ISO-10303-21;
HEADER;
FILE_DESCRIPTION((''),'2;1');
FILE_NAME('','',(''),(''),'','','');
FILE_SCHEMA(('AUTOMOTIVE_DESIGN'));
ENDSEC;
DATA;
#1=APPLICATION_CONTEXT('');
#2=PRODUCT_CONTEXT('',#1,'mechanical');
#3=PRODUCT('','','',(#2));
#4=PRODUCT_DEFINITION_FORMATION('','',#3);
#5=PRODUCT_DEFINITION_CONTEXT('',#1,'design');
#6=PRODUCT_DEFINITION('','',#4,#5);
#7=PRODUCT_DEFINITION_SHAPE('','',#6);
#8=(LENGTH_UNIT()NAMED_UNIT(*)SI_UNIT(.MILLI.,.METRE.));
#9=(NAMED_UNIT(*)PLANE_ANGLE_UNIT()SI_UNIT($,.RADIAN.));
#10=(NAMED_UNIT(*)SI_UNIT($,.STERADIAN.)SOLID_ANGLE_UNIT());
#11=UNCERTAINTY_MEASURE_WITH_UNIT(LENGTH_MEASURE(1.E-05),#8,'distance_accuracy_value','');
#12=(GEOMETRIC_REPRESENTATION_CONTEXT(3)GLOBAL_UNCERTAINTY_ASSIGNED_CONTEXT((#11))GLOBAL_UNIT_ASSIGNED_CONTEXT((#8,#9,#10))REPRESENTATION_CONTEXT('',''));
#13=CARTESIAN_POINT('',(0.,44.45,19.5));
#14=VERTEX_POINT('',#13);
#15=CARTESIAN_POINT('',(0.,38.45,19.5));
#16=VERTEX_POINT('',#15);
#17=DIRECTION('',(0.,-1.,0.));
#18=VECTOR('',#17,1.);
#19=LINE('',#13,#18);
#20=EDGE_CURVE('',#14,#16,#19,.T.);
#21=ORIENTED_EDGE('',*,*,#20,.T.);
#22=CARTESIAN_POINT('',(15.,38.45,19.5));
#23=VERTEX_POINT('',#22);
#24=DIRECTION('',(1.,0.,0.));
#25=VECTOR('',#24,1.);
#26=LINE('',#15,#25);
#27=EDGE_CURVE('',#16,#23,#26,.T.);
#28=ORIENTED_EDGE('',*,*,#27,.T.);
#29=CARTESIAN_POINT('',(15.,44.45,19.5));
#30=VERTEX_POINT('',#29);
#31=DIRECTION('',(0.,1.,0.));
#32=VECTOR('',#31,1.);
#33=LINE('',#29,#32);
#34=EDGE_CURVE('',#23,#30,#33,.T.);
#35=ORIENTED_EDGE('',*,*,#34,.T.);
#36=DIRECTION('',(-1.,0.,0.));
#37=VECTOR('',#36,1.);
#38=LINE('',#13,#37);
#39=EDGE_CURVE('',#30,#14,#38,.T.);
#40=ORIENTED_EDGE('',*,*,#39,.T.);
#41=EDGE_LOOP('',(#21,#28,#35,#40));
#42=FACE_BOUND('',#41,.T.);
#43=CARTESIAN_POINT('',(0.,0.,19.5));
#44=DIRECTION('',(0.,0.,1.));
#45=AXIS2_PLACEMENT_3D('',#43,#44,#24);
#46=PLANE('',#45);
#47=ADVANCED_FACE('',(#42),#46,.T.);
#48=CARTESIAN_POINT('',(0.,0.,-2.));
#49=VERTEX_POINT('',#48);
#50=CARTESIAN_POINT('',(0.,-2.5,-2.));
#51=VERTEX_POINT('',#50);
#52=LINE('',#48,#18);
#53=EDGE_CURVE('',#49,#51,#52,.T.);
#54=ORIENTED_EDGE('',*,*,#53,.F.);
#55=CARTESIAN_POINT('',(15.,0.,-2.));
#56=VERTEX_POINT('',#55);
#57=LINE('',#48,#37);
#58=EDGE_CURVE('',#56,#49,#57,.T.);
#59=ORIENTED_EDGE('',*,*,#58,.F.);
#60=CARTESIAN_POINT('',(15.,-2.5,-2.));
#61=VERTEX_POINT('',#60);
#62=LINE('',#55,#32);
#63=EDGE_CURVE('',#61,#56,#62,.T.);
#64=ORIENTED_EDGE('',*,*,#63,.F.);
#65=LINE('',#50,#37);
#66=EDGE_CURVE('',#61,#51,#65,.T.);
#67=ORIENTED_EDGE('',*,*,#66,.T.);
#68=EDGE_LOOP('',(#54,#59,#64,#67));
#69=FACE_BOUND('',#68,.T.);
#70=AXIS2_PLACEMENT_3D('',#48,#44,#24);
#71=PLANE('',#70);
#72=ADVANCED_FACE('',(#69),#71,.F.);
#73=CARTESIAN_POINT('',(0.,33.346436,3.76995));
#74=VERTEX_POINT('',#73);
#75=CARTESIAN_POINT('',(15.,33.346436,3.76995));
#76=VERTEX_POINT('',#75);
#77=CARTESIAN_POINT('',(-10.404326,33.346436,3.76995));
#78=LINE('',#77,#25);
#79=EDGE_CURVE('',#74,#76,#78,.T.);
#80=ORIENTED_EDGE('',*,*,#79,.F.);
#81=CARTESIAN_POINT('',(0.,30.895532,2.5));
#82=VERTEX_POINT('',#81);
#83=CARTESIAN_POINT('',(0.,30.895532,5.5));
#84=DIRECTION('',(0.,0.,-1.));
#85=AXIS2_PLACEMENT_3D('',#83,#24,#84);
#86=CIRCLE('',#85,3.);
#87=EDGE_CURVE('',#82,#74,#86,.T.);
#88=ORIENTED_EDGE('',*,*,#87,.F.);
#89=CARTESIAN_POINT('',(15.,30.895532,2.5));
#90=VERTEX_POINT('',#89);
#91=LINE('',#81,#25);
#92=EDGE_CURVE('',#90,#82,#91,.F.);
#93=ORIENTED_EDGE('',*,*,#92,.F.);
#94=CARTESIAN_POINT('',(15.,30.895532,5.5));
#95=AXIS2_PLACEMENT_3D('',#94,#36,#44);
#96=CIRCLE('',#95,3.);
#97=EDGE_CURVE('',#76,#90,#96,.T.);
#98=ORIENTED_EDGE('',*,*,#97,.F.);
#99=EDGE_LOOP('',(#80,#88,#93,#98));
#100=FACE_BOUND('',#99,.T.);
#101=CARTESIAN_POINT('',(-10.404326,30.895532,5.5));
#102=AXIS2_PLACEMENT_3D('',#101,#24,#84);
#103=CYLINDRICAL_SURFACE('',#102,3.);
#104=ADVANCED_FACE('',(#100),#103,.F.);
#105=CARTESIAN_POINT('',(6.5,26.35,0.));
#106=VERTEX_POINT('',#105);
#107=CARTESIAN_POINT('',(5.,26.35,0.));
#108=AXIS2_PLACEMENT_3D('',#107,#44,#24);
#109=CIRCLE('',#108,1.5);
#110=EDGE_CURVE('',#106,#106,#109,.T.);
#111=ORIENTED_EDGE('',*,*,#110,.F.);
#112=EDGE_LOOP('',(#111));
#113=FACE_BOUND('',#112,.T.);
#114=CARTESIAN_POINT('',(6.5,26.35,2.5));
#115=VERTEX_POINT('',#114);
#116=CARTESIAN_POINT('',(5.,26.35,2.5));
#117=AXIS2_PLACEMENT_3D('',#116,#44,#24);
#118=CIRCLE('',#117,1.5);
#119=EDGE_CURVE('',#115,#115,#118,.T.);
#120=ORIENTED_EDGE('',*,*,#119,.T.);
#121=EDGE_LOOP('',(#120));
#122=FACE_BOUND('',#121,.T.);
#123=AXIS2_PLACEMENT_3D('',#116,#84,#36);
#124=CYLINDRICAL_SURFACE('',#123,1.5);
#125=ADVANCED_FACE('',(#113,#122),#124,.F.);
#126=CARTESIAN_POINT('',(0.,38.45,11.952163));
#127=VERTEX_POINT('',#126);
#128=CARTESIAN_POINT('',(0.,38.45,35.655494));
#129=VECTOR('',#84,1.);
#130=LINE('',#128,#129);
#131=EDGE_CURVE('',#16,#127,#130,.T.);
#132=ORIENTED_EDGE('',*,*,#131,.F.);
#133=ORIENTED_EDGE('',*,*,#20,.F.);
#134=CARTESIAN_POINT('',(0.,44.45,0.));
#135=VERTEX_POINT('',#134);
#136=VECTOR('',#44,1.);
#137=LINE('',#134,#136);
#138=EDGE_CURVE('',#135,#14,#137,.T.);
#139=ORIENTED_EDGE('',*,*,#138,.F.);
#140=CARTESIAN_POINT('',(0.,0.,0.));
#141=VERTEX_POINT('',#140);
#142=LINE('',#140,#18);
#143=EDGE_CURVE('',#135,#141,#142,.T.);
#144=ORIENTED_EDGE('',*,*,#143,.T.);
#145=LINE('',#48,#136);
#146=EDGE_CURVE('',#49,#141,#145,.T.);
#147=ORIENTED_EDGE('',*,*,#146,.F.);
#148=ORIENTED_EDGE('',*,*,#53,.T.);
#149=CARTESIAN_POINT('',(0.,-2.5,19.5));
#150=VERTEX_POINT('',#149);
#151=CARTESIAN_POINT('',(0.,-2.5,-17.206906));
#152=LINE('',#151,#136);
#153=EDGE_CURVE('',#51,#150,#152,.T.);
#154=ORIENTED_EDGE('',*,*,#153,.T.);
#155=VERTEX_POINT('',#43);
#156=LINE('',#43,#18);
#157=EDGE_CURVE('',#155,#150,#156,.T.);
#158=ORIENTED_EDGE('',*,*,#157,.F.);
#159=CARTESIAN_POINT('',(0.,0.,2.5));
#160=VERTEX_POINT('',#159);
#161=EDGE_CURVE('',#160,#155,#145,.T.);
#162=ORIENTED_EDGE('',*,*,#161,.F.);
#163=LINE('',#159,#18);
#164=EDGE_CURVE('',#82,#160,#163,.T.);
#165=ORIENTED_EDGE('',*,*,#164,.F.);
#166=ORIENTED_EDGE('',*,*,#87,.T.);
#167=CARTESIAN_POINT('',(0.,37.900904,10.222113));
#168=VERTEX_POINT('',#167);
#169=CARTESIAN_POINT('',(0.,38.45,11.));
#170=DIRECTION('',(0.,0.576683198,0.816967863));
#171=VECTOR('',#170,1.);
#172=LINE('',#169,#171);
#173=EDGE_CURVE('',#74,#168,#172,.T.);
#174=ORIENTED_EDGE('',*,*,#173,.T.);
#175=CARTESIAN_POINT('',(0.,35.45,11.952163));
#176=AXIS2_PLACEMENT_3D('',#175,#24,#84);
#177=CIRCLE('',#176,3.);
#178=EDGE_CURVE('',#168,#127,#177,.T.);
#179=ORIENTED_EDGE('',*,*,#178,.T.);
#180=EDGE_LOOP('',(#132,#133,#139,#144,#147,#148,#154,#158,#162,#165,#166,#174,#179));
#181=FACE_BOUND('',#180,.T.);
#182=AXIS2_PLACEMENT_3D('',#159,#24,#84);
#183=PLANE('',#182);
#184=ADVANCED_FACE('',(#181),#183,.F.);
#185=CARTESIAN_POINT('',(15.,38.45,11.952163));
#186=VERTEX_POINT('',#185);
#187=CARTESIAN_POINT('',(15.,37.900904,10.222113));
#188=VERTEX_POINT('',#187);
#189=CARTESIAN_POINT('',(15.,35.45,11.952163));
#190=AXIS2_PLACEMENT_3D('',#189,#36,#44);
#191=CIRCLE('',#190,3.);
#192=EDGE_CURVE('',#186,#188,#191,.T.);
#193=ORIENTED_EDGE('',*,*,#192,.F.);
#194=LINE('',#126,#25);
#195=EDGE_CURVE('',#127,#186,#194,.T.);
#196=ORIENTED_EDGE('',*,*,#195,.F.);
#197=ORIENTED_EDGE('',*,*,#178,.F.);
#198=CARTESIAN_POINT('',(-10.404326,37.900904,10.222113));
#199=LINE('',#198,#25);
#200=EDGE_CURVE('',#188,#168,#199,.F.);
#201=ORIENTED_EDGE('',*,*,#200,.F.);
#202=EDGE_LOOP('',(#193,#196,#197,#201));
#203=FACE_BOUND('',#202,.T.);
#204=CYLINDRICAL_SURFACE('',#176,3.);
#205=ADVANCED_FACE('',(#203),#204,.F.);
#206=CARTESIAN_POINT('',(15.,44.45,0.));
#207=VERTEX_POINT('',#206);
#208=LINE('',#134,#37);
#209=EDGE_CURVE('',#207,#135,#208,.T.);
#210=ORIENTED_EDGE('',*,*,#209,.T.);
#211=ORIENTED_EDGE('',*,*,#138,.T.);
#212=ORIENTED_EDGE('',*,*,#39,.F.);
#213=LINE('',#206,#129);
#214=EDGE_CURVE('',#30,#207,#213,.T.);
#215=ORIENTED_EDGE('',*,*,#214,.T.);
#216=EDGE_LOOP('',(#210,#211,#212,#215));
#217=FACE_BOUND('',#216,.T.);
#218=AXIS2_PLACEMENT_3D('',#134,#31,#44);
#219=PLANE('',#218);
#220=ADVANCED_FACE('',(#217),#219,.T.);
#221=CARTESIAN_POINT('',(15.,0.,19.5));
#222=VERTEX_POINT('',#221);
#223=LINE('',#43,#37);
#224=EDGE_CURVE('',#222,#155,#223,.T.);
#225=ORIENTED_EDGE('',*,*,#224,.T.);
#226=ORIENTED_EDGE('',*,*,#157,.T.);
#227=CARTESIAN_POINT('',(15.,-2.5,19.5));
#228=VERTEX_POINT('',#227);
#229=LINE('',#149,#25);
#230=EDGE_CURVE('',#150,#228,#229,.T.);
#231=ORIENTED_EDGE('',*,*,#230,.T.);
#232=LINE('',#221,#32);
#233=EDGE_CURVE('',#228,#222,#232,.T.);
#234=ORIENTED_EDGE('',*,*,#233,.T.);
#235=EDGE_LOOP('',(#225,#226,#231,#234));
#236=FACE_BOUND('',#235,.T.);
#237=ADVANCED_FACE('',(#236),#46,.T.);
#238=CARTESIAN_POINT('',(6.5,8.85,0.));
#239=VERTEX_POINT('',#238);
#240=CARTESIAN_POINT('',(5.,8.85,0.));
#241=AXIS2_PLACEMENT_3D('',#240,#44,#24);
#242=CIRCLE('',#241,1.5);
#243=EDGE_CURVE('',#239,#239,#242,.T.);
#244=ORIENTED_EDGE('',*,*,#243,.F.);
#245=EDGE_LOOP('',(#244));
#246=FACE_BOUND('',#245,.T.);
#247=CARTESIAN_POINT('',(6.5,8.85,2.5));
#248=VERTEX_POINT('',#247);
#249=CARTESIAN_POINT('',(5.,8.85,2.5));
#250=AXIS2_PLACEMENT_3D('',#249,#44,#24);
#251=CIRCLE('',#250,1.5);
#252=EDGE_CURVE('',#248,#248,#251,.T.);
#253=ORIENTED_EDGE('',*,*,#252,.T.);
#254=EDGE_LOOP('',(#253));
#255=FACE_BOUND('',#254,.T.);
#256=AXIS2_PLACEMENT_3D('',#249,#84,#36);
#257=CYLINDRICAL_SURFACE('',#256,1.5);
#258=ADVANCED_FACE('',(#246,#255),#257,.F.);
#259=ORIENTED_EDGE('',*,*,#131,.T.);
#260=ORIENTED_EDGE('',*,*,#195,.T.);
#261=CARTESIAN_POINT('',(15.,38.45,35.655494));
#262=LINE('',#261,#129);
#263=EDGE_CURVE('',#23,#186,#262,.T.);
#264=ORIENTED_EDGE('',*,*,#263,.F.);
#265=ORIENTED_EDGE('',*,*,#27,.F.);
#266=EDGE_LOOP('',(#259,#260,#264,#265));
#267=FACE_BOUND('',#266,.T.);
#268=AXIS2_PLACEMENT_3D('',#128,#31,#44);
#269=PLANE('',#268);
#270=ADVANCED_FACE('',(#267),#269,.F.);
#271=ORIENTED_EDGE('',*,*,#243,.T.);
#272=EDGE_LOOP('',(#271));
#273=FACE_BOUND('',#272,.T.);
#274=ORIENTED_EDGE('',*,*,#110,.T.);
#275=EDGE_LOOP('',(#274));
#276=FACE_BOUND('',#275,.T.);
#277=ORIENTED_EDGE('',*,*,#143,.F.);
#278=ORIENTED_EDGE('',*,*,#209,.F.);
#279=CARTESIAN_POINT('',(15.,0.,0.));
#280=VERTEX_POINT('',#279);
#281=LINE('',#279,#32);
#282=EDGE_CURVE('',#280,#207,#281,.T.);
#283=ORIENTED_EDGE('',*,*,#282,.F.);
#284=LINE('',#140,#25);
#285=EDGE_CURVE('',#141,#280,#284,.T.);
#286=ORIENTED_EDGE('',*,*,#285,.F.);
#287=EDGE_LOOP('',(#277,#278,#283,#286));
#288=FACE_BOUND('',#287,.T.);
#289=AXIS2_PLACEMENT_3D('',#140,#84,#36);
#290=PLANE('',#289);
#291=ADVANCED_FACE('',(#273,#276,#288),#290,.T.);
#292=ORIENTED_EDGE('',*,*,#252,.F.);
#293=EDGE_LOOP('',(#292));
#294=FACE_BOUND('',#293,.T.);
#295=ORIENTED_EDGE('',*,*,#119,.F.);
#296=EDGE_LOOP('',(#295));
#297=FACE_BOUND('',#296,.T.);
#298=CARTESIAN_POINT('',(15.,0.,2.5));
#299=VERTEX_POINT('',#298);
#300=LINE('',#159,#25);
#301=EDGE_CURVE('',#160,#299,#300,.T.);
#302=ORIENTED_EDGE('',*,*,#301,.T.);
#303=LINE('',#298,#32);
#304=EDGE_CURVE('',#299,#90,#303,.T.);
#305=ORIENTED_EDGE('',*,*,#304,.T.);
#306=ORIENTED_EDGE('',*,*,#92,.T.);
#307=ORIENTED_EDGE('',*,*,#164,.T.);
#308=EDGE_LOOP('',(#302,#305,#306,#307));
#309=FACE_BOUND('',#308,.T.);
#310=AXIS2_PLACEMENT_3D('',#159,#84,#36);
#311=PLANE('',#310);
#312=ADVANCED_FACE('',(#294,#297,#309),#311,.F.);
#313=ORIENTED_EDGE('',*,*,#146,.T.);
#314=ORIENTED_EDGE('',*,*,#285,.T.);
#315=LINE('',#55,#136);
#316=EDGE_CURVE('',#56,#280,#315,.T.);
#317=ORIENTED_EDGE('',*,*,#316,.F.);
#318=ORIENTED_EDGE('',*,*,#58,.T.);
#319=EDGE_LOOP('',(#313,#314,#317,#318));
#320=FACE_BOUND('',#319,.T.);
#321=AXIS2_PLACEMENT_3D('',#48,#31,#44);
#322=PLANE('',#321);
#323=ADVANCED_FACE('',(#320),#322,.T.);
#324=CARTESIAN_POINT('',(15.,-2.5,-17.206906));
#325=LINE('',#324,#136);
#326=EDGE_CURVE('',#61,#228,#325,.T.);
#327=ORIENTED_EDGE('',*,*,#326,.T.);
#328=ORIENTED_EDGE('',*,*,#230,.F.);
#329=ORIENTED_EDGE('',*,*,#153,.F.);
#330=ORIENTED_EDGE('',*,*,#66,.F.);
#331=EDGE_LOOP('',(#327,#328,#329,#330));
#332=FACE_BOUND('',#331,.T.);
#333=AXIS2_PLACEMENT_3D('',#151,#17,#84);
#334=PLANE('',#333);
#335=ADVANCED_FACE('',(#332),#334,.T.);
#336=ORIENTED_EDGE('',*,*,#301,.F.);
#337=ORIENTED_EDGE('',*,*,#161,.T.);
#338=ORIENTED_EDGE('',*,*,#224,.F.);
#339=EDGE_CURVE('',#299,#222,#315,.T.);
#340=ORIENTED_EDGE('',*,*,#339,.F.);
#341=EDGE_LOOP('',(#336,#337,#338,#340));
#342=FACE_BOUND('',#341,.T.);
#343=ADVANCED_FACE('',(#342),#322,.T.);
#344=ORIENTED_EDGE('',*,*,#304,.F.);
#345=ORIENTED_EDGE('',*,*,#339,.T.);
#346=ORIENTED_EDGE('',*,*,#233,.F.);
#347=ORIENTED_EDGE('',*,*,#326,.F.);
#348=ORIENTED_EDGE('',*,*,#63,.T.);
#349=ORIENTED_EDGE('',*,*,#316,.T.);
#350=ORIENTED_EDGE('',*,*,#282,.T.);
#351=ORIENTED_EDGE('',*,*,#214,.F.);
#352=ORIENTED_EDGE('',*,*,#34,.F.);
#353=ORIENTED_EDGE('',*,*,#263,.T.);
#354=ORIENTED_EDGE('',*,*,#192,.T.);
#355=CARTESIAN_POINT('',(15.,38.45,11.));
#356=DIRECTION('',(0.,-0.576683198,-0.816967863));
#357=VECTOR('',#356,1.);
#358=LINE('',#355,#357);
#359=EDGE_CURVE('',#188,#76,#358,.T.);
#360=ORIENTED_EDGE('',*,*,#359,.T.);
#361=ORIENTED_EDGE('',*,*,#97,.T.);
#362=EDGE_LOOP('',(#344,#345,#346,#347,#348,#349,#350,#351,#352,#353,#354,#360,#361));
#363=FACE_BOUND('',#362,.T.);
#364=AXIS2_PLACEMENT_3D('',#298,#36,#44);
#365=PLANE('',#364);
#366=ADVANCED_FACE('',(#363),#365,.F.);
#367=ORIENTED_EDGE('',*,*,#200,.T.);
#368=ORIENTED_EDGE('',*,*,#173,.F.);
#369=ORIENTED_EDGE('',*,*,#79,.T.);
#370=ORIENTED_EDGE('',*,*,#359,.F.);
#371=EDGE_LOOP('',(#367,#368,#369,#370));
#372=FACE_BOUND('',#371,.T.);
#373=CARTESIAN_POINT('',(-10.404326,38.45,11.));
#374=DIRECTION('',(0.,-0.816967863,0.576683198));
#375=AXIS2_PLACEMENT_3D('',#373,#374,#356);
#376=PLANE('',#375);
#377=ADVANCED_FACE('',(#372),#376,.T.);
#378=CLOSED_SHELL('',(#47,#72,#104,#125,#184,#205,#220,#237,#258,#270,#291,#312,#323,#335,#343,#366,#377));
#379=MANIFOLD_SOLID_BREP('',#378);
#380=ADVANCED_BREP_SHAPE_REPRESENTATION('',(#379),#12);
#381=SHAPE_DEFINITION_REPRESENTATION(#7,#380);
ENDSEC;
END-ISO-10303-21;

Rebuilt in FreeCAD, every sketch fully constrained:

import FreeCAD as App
import Part
import Sketcher
from FreeCAD import Vector
Q = App.Units.Quantity


def edges_at(feature, points):
    """Names of the edges that pass closest to the given points."""
    edges = feature.Shape.Edges
    near = lambda p: min(range(len(edges)), key=lambda i: edges[i].distToShape(Part.Vertex(*p))[0])
    return sorted({f"Edge{near(p) + 1}" for p in points})

doc = App.newDocument("Part")
body = doc.addObject("PartDesign::Body", "Body")

# Sketch on XY plane
sketch1 = body.newObject("Sketcher::SketchObject", "Sketch")
sketch1.AttachmentSupport = (doc.getObject("XY_Plane"), [""])
sketch1.MapMode = "FlatFace"
sketch1.addGeometry([
    Part.LineSegment(Vector(0, 28.9, 0), Vector(0, 0, 0)),  # 0
    Part.LineSegment(Vector(0, 0, 0), Vector(15, 0, 0)),  # 1
    Part.LineSegment(Vector(15, 0, 0), Vector(15, 28.9, 0)),  # 2
    Part.LineSegment(Vector(15, 28.9, 0), Vector(0, 28.9, 0)),  # 3
    Part.Circle(Vector(5, 8.8, 0), Vector(0, 0, 1), 1.5),  # 4
    Part.Circle(Vector(5, 26.4, 0), Vector(0, 0, 1), 1.5),  # 5
], False)
sketch1.addConstraint([
    Sketcher.Constraint("Coincident", 0, 2, 1, 1),
    Sketcher.Constraint("Coincident", 1, 2, 2, 1),
    Sketcher.Constraint("Coincident", 2, 2, 3, 1),
    Sketcher.Constraint("Coincident", 3, 2, 0, 1),
    Sketcher.Constraint("Vertical", 0),
    Sketcher.Constraint("Horizontal", 1),
    Sketcher.Constraint("Vertical", 2),
    Sketcher.Constraint("Horizontal", 3),
    Sketcher.Constraint("Coincident", 0, 2, -1, 1),
    Sketcher.Constraint("Equal", 4, 5),
    Sketcher.Constraint("Vertical", 4, 3, 5, 3),
    Sketcher.Constraint("Diameter", 4, Q("3 mm")),
    Sketcher.Constraint("DistanceX", 1, 1, 1, 2, Q("15 mm")),
    Sketcher.Constraint("DistanceX", -1, 1, 4, 3, Q("5 mm")),
    Sketcher.Constraint("DistanceY", 4, 3, 2, 2, Q("20 mm")),
    Sketcher.Constraint("DistanceY", 0, 2, 0, 1, Q("28.85 mm")),
    Sketcher.Constraint("DistanceY", 4, 3, 5, 3, Q("17.5 mm")),
])
pad1 = body.newObject("PartDesign::Pad", "Pad")
pad1.Profile = sketch1
pad1.Length = 2.5

# Sketch on XY plane
sketch2 = body.newObject("Sketcher::SketchObject", "Sketch001")
sketch2.AttachmentSupport = (doc.getObject("XY_Plane"), [""])
sketch2.MapMode = "FlatFace"
sketch2.AttachmentOffset = App.Placement(Vector(0, 0, 2.5), App.Rotation())
sketch2.addGeometry([
    Part.LineSegment(Vector(0, 0, 0), Vector(0, -2, 0)),
    Part.LineSegment(Vector(0, -2, 0), Vector(15, -2, 0)),
    Part.LineSegment(Vector(15, -2, 0), Vector(15, 0, 0)),
    Part.LineSegment(Vector(15, 0, 0), Vector(0, 0, 0)),
], False)
sketch2.addConstraint([
    Sketcher.Constraint("Coincident", 0, 2, 1, 1),
    Sketcher.Constraint("Coincident", 1, 2, 2, 1),
    Sketcher.Constraint("Coincident", 2, 2, 3, 1),
    Sketcher.Constraint("Coincident", 3, 2, 0, 1),
    Sketcher.Constraint("Vertical", 0),
    Sketcher.Constraint("Horizontal", 1),
    Sketcher.Constraint("Vertical", 2),
    Sketcher.Constraint("Horizontal", 3),
    Sketcher.Constraint("Coincident", 3, 2, -1, 1),
    Sketcher.Constraint("DistanceX", 1, 1, 1, 2, Q("15 mm")),
    Sketcher.Constraint("DistanceY", 0, 2, 0, 1, Q("2 mm")),
])
pad2 = body.newObject("PartDesign::Pad", "Pad001")
pad2.Profile = sketch2
pad2.Type = "TwoLengths"
pad2.Length = 17
pad2.Length2 = 4.5

# Sketch on XZ plane
sketch3 = body.newObject("Sketcher::SketchObject", "Sketch002")
sketch3.AttachmentSupport = (doc.getObject("XZ_Plane"), [""])
sketch3.MapMode = "FlatFace"
sketch3.AttachmentOffset = App.Placement(Vector(0, 0, -28.85), App.Rotation())
sketch3.addGeometry([
    Part.LineSegment(Vector(0, 0, 0), Vector(0, 2.5, 0)),
    Part.LineSegment(Vector(0, 2.5, 0), Vector(15, 2.5, 0)),
    Part.LineSegment(Vector(15, 2.5, 0), Vector(15, 0, 0)),
    Part.LineSegment(Vector(15, 0, 0), Vector(0, 0, 0)),
], False)
sketch3.addConstraint([
    Sketcher.Constraint("Coincident", 0, 2, 1, 1),
    Sketcher.Constraint("Coincident", 1, 2, 2, 1),
    Sketcher.Constraint("Coincident", 2, 2, 3, 1),
    Sketcher.Constraint("Coincident", 3, 2, 0, 1),
    Sketcher.Constraint("Vertical", 0),
    Sketcher.Constraint("Horizontal", 1),
    Sketcher.Constraint("Vertical", 2),
    Sketcher.Constraint("Horizontal", 3),
    Sketcher.Constraint("Coincident", 3, 2, -1, 1),
    Sketcher.Constraint("DistanceX", 1, 1, 1, 2, Q("15 mm")),
    Sketcher.Constraint("DistanceY", 0, 1, 0, 2, Q("2.5 mm")),
])
pad3 = body.newObject("PartDesign::Pad", "Pad002")
pad3.Profile = sketch3
pad3.Length = 15.6
pad3.Reversed = True

# Sketch on XY plane
sketch4 = body.newObject("Sketcher::SketchObject", "Sketch003")
sketch4.AttachmentSupport = (doc.getObject("XY_Plane"), [""])
sketch4.MapMode = "FlatFace"
sketch4.AttachmentOffset = App.Placement(Vector(0, 0, 19.5), App.Rotation())
sketch4.addGeometry([
    Part.LineSegment(Vector(0, 0, 0), Vector(0, -2.5, 0)),
    Part.LineSegment(Vector(0, -2.5, 0), Vector(15, -2.5, 0)),
    Part.LineSegment(Vector(15, -2.5, 0), Vector(15, 0, 0)),
    Part.LineSegment(Vector(15, 0, 0), Vector(0, 0, 0)),
], False)
sketch4.addConstraint([
    Sketcher.Constraint("Coincident", 0, 2, 1, 1),
    Sketcher.Constraint("Coincident", 1, 2, 2, 1),
    Sketcher.Constraint("Coincident", 2, 2, 3, 1),
    Sketcher.Constraint("Coincident", 3, 2, 0, 1),
    Sketcher.Constraint("Vertical", 0),
    Sketcher.Constraint("Horizontal", 1),
    Sketcher.Constraint("Vertical", 2),
    Sketcher.Constraint("Horizontal", 3),
    Sketcher.Constraint("Coincident", 3, 2, -1, 1),
    Sketcher.Constraint("DistanceX", 1, 1, 1, 2, Q("15 mm")),
    Sketcher.Constraint("DistanceY", 0, 2, 0, 1, Q("2.5 mm")),
])
pad4 = body.newObject("PartDesign::Pad", "Pad003")
pad4.Profile = sketch4
pad4.Length = 21.5
pad4.Reversed = True

# Sketch on XY plane
sketch5 = body.newObject("Sketcher::SketchObject", "Sketch004")
sketch5.AttachmentSupport = (doc.getObject("XY_Plane"), [""])
sketch5.MapMode = "FlatFace"
sketch5.AttachmentOffset = App.Placement(Vector(0, 0, 2.5), App.Rotation())
sketch5.addGeometry([
    Part.LineSegment(Vector(0, 44, 0), Vector(0, 38, 0)),
    Part.LineSegment(Vector(0, 38, 0), Vector(15, 38, 0)),
    Part.LineSegment(Vector(15, 38, 0), Vector(15, 44, 0)),
    Part.LineSegment(Vector(15, 44, 0), Vector(0, 44, 0)),
], False)
sketch5.addConstraint([
    Sketcher.Constraint("Coincident", 0, 2, 1, 1),
    Sketcher.Constraint("Coincident", 1, 2, 2, 1),
    Sketcher.Constraint("Coincident", 2, 2, 3, 1),
    Sketcher.Constraint("Coincident", 3, 2, 0, 1),
    Sketcher.Constraint("Vertical", 0),
    Sketcher.Constraint("Horizontal", 1),
    Sketcher.Constraint("Vertical", 2),
    Sketcher.Constraint("Horizontal", 3),
    Sketcher.Constraint("PointOnObject", 0, 2, -2),
    Sketcher.Constraint("DistanceX", 1, 1, 1, 2, Q("15 mm")),
    Sketcher.Constraint("DistanceY", 0, 2, 0, 1, Q("6 mm")),
    Sketcher.Constraint("DistanceY", -1, 1, 0, 2, Q("38.45 mm")),
])
pad5 = body.newObject("PartDesign::Pad", "Pad004")
pad5.Profile = sketch5
pad5.Length = 17

# Sketch on YZ plane
sketch6 = body.newObject("Sketcher::SketchObject", "Sketch005")
sketch6.AttachmentSupport = (doc.getObject("YZ_Plane"), [""])
sketch6.MapMode = "FlatFace"
sketch6.AttachmentOffset = App.Placement(Vector(0, 0, 15), App.Rotation())
sketch6.addGeometry([
    Part.LineSegment(Vector(38, 11, 0), Vector(32, 2, 0)),
    Part.LineSegment(Vector(32, 2, 0), Vector(38, 2, 0)),
    Part.LineSegment(Vector(38, 2, 0), Vector(38, 11, 0)),
], False)
sketch6.addConstraint([
    Sketcher.Constraint("Coincident", 0, 2, 1, 1),
    Sketcher.Constraint("Coincident", 1, 2, 2, 1),
    Sketcher.Constraint("Coincident", 2, 2, 0, 1),
    Sketcher.Constraint("Horizontal", 1),
    Sketcher.Constraint("Vertical", 2),
    Sketcher.Constraint("DistanceX", 1, 1, 1, 2, Q("6 mm")),
    Sketcher.Constraint("DistanceY", 2, 1, 2, 2, Q("8.5 mm")),
    Sketcher.Constraint("DistanceY", -1, 1, 2, 2, Q("11 mm")),
    Sketcher.Constraint("DistanceX", -1, 1, 0, 2, Q("32.45 mm")),
])
pad6 = body.newObject("PartDesign::Pad", "Pad005")
pad6.Profile = sketch6
pad6.Length = 15
pad6.Reversed = True
doc.recompute()

fillet = body.newObject("PartDesign::Fillet", "Fillet")
fillet.Base = (pad6, edges_at(pad6, [(7.5, 38.45, 11), (7.5, 32.45, 2.5)]))
fillet.Radius = 3

doc.recompute()
